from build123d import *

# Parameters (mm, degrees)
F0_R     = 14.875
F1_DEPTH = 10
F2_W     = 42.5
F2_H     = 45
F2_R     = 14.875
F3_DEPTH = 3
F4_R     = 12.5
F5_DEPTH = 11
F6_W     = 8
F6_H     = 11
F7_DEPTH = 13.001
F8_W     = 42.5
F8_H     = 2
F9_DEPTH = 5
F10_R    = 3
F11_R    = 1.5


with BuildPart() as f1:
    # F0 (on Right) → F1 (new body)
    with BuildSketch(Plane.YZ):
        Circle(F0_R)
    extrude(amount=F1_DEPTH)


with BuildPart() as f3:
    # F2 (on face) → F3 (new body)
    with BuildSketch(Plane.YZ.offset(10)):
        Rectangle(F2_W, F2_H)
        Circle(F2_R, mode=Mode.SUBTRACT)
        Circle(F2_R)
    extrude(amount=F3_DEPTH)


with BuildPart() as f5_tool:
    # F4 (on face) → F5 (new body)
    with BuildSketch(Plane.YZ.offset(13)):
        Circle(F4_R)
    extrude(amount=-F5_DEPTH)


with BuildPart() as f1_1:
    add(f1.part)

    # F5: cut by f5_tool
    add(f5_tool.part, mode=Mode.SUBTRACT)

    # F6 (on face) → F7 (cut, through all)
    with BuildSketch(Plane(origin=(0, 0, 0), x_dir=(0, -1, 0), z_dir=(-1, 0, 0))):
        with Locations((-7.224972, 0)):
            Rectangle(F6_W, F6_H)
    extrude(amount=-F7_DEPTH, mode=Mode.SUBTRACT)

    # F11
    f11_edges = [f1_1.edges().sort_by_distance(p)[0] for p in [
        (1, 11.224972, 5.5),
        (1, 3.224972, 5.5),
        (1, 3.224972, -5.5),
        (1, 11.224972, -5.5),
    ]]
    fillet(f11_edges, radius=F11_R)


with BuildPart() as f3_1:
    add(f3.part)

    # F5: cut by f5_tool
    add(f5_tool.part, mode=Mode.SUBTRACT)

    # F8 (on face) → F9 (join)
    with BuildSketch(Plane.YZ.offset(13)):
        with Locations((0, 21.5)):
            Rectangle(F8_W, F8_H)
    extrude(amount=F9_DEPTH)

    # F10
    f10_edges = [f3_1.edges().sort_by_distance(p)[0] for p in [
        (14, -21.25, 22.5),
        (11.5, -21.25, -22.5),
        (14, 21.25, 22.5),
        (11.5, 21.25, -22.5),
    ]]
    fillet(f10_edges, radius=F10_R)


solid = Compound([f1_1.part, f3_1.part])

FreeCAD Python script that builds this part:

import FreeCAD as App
import Part
import Sketcher
from FreeCAD import Vector
Q = App.Units.Quantity


def edges_at(feature, points):
    """Names of the edges that pass closest to the given points."""
    edges = feature.Shape.Edges
    near = lambda p: min(range(len(edges)), key=lambda i: edges[i].distToShape(Part.Vertex(*p))[0])
    return sorted({f"Edge{near(p) + 1}" for p in points})

doc = App.newDocument("Part")
body = doc.addObject("PartDesign::Body", "Body")

# Sketch on YZ plane
sketch1 = body.newObject("Sketcher::SketchObject", "Sketch")
sketch1.AttachmentSupport = (doc.getObject("YZ_Plane"), [""])
sketch1.MapMode = "FlatFace"
sketch1.addGeometry(Part.Circle(Vector(0, 0, 0), Vector(0, 0, 1), 15), False)
sketch1.addConstraint(Sketcher.Constraint("Coincident", 0, 3, -1, 1))
sketch1.addConstraint(Sketcher.Constraint("Diameter", 0, Q("29.75 mm")))
pad1 = body.newObject("PartDesign::Pad", "Pad")
pad1.Profile = sketch1
pad1.Length = 10
body2 = doc.addObject("PartDesign::Body", "Body001")

# Sketch on YZ plane
sketch2 = body2.newObject("Sketcher::SketchObject", "Sketch001")
sketch2.AttachmentSupport = (doc.getObject("YZ_Plane001"), [""])
sketch2.MapMode = "FlatFace"
sketch2.AttachmentOffset = App.Placement(Vector(0, 0, 10), App.Rotation())
sketch2.addGeometry(Part.LineSegment(Vector(-21, 22, 0), Vector(-21, -22, 0)), False)
sketch2.addGeometry(Part.LineSegment(Vector(-21, -22, 0), Vector(21, -22, 0)), False)
sketch2.addGeometry(Part.LineSegment(Vector(21, -22, 0), Vector(21, 22, 0)), False)
sketch2.addGeometry(Part.LineSegment(Vector(21, 22, 0), Vector(-21, 22, 0)), False)
sketch2.addConstraint(Sketcher.Constraint("Coincident", 0, 2, 1, 1))
sketch2.addConstraint(Sketcher.Constraint("Coincident", 1, 2, 2, 1))
sketch2.addConstraint(Sketcher.Constraint("Coincident", 2, 2, 3, 1))
sketch2.addConstraint(Sketcher.Constraint("Coincident", 3, 2, 0, 1))
sketch2.addConstraint(Sketcher.Constraint("Vertical", 0))
sketch2.addConstraint(Sketcher.Constraint("Horizontal", 1))
sketch2.addConstraint(Sketcher.Constraint("Vertical", 2))
sketch2.addConstraint(Sketcher.Constraint("Horizontal", 3))
sketch2.addConstraint(Sketcher.Constraint("Symmetric", 0, 2, 2, 2, -1, 1))
sketch2.addConstraint(Sketcher.Constraint("DistanceY", 0, 2, 0, 1, Q("45 mm")))
sketch2.addConstraint(Sketcher.Constraint("DistanceX", 1, 1, 1, 2, Q("42.5 mm")))
pad2 = body2.newObject("PartDesign::Pad", "Pad001")
pad2.Profile = sketch2
pad2.Length = 3
body3 = doc.addObject("PartDesign::Body", "Body002")

# Sketch on YZ plane
sketch3 = body3.newObject("Sketcher::SketchObject", "Sketch002")
sketch3.AttachmentSupport = (doc.getObject("YZ_Plane002"), [""])
sketch3.MapMode = "FlatFace"
sketch3.AttachmentOffset = App.Placement(Vector(0, 0, 13), App.Rotation())
sketch3.addGeometry(Part.Circle(Vector(0, 0, 0), Vector(0, 0, 1), 12), False)
sketch3.addConstraint(Sketcher.Constraint("Coincident", 0, 3, -1, 1))
sketch3.addConstraint(Sketcher.Constraint("Diameter", 0, Q("25 mm")))
pad3 = body3.newObject("PartDesign::Pad", "Pad002")
pad3.Profile = sketch3
pad3.Length = 11
pad3.Reversed = True
doc.recompute()

body4 = doc.addObject("PartDesign::Body", "Body003")
body4.BaseFeature = body3
boolean = body.newObject("PartDesign::Boolean", "Boolean")
boolean.Type = "Cut"
boolean.addObjects([body4])
doc.recompute()

# Sketch on YZ plane
sketch4 = body.newObject("Sketcher::SketchObject", "Sketch003")
sketch4.AttachmentSupport = (doc.getObject("YZ_Plane"), [""])
sketch4.MapMode = "FlatFace"
sketch4.addGeometry(Part.LineSegment(Vector(11, 6, 0), Vector(11, -6, 0)), False)
sketch4.addGeometry(Part.LineSegment(Vector(11, -6, 0), Vector(3, -6, 0)), False)
sketch4.addGeometry(Part.LineSegment(Vector(3, -6, 0), Vector(3, 6, 0)), False)
sketch4.addGeometry(Part.LineSegment(Vector(3, 6, 0), Vector(11, 6, 0)), False)
sketch4.addConstraint(Sketcher.Constraint("Coincident", 0, 2, 1, 1))
sketch4.addConstraint(Sketcher.Constraint("Coincident", 1, 2, 2, 1))
sketch4.addConstraint(Sketcher.Constraint("Coincident", 2, 2, 3, 1))
sketch4.addConstraint(Sketcher.Constraint("Coincident", 3, 2, 0, 1))
sketch4.addConstraint(Sketcher.Constraint("Vertical", 0))
sketch4.addConstraint(Sketcher.Constraint("Horizontal", 1))
sketch4.addConstraint(Sketcher.Constraint("Vertical", 2))
sketch4.addConstraint(Sketcher.Constraint("Horizontal", 3))
sketch4.addConstraint(Sketcher.Constraint("DistanceX", 1, 2, 1, 1, Q("8 mm")))
sketch4.addConstraint(Sketcher.Constraint("DistanceY", 0, 2, 0, 1, Q("11 mm")))
sketch4.addConstraint(Sketcher.Constraint("DistanceY", 0, 2, -1, 1, Q("5.5 mm")))
sketch4.addConstraint(Sketcher.Constraint("DistanceX", -1, 1, 0, 2, Q("11.224972 mm")))
pocket1 = body.newObject("PartDesign::Pocket", "Pocket")
pocket1.Profile = sketch4
pocket1.Type = "ThroughAll"
pocket1.Reversed = True
doc.recompute()

fillet = body.newObject("PartDesign::Fillet", "Fillet")
fillet.Base = (pocket1, edges_at(pocket1, [
    (1, 11.225, 5.5),
    (1, 3.225, 5.5),
    (1, 3.225, -5.5),
    (1, 11.225, -5.5),
]))
fillet.Radius = 1.5
doc.recompute()

boolean2 = body2.newObject("PartDesign::Boolean", "Boolean001")
boolean2.Type = "Cut"
boolean2.addObjects([body3])

# Sketch on YZ plane
sketch5 = body2.newObject("Sketcher::SketchObject", "Sketch004")
sketch5.AttachmentSupport = (doc.getObject("YZ_Plane001"), [""])
sketch5.MapMode = "FlatFace"
sketch5.AttachmentOffset = App.Placement(Vector(0, 0, 13), App.Rotation())
sketch5.addGeometry(Part.LineSegment(Vector(-21.2, 22.5, 0), Vector(-21.2, 20.5, 0)), False)
sketch5.addGeometry(Part.LineSegment(Vector(-21.2, 20.5, 0), Vector(21.2, 20.5, 0)), False)
sketch5.addGeometry(Part.LineSegment(Vector(21.2, 20.5, 0), Vector(21.2, 22.5, 0)), False)
sketch5.addGeometry(Part.LineSegment(Vector(21.2, 22.5, 0), Vector(-21.2, 22.5, 0)), False)
sketch5.addConstraint(Sketcher.Constraint("Coincident", 0, 2, 1, 1))
sketch5.addConstraint(Sketcher.Constraint("Coincident", 1, 2, 2, 1))
sketch5.addConstraint(Sketcher.Constraint("Coincident", 2, 2, 3, 1))
sketch5.addConstraint(Sketcher.Constraint("Coincident", 3, 2, 0, 1))
sketch5.addConstraint(Sketcher.Constraint("Vertical", 0))
sketch5.addConstraint(Sketcher.Constraint("Horizontal", 1))
sketch5.addConstraint(Sketcher.Constraint("Vertical", 2))
sketch5.addConstraint(Sketcher.Constraint("Horizontal", 3))
sketch5.addConstraint(Sketcher.Constraint("DistanceY", 0, 2, 0, 1, Q("2 mm")))
sketch5.addConstraint(Sketcher.Constraint("DistanceX", 1, 1, 1, 2, Q("42.5 mm")))
sketch5.addConstraint(Sketcher.Constraint("DistanceY", -1, 1, 0, 2, Q("20.5 mm")))
sketch5.addConstraint(Sketcher.Constraint("DistanceX", 0, 2, -1, 1, Q("21.25 mm")))
pad4 = body2.newObject("PartDesign::Pad", "Pad003")
pad4.Profile = sketch5
pad4.Length = 5
doc.recompute()

fillet2 = body2.newObject("PartDesign::Fillet", "Fillet001")
fillet2.Base = (pad4, edges_at(pad4, [
    (14, -21.25, 22.5),
    (11.5, -21.25, -22.5),
    (14, 21.25, 22.5),
    (11.5, 21.25, -22.5),
]))
fillet2.Radius = 3

doc.recompute()
